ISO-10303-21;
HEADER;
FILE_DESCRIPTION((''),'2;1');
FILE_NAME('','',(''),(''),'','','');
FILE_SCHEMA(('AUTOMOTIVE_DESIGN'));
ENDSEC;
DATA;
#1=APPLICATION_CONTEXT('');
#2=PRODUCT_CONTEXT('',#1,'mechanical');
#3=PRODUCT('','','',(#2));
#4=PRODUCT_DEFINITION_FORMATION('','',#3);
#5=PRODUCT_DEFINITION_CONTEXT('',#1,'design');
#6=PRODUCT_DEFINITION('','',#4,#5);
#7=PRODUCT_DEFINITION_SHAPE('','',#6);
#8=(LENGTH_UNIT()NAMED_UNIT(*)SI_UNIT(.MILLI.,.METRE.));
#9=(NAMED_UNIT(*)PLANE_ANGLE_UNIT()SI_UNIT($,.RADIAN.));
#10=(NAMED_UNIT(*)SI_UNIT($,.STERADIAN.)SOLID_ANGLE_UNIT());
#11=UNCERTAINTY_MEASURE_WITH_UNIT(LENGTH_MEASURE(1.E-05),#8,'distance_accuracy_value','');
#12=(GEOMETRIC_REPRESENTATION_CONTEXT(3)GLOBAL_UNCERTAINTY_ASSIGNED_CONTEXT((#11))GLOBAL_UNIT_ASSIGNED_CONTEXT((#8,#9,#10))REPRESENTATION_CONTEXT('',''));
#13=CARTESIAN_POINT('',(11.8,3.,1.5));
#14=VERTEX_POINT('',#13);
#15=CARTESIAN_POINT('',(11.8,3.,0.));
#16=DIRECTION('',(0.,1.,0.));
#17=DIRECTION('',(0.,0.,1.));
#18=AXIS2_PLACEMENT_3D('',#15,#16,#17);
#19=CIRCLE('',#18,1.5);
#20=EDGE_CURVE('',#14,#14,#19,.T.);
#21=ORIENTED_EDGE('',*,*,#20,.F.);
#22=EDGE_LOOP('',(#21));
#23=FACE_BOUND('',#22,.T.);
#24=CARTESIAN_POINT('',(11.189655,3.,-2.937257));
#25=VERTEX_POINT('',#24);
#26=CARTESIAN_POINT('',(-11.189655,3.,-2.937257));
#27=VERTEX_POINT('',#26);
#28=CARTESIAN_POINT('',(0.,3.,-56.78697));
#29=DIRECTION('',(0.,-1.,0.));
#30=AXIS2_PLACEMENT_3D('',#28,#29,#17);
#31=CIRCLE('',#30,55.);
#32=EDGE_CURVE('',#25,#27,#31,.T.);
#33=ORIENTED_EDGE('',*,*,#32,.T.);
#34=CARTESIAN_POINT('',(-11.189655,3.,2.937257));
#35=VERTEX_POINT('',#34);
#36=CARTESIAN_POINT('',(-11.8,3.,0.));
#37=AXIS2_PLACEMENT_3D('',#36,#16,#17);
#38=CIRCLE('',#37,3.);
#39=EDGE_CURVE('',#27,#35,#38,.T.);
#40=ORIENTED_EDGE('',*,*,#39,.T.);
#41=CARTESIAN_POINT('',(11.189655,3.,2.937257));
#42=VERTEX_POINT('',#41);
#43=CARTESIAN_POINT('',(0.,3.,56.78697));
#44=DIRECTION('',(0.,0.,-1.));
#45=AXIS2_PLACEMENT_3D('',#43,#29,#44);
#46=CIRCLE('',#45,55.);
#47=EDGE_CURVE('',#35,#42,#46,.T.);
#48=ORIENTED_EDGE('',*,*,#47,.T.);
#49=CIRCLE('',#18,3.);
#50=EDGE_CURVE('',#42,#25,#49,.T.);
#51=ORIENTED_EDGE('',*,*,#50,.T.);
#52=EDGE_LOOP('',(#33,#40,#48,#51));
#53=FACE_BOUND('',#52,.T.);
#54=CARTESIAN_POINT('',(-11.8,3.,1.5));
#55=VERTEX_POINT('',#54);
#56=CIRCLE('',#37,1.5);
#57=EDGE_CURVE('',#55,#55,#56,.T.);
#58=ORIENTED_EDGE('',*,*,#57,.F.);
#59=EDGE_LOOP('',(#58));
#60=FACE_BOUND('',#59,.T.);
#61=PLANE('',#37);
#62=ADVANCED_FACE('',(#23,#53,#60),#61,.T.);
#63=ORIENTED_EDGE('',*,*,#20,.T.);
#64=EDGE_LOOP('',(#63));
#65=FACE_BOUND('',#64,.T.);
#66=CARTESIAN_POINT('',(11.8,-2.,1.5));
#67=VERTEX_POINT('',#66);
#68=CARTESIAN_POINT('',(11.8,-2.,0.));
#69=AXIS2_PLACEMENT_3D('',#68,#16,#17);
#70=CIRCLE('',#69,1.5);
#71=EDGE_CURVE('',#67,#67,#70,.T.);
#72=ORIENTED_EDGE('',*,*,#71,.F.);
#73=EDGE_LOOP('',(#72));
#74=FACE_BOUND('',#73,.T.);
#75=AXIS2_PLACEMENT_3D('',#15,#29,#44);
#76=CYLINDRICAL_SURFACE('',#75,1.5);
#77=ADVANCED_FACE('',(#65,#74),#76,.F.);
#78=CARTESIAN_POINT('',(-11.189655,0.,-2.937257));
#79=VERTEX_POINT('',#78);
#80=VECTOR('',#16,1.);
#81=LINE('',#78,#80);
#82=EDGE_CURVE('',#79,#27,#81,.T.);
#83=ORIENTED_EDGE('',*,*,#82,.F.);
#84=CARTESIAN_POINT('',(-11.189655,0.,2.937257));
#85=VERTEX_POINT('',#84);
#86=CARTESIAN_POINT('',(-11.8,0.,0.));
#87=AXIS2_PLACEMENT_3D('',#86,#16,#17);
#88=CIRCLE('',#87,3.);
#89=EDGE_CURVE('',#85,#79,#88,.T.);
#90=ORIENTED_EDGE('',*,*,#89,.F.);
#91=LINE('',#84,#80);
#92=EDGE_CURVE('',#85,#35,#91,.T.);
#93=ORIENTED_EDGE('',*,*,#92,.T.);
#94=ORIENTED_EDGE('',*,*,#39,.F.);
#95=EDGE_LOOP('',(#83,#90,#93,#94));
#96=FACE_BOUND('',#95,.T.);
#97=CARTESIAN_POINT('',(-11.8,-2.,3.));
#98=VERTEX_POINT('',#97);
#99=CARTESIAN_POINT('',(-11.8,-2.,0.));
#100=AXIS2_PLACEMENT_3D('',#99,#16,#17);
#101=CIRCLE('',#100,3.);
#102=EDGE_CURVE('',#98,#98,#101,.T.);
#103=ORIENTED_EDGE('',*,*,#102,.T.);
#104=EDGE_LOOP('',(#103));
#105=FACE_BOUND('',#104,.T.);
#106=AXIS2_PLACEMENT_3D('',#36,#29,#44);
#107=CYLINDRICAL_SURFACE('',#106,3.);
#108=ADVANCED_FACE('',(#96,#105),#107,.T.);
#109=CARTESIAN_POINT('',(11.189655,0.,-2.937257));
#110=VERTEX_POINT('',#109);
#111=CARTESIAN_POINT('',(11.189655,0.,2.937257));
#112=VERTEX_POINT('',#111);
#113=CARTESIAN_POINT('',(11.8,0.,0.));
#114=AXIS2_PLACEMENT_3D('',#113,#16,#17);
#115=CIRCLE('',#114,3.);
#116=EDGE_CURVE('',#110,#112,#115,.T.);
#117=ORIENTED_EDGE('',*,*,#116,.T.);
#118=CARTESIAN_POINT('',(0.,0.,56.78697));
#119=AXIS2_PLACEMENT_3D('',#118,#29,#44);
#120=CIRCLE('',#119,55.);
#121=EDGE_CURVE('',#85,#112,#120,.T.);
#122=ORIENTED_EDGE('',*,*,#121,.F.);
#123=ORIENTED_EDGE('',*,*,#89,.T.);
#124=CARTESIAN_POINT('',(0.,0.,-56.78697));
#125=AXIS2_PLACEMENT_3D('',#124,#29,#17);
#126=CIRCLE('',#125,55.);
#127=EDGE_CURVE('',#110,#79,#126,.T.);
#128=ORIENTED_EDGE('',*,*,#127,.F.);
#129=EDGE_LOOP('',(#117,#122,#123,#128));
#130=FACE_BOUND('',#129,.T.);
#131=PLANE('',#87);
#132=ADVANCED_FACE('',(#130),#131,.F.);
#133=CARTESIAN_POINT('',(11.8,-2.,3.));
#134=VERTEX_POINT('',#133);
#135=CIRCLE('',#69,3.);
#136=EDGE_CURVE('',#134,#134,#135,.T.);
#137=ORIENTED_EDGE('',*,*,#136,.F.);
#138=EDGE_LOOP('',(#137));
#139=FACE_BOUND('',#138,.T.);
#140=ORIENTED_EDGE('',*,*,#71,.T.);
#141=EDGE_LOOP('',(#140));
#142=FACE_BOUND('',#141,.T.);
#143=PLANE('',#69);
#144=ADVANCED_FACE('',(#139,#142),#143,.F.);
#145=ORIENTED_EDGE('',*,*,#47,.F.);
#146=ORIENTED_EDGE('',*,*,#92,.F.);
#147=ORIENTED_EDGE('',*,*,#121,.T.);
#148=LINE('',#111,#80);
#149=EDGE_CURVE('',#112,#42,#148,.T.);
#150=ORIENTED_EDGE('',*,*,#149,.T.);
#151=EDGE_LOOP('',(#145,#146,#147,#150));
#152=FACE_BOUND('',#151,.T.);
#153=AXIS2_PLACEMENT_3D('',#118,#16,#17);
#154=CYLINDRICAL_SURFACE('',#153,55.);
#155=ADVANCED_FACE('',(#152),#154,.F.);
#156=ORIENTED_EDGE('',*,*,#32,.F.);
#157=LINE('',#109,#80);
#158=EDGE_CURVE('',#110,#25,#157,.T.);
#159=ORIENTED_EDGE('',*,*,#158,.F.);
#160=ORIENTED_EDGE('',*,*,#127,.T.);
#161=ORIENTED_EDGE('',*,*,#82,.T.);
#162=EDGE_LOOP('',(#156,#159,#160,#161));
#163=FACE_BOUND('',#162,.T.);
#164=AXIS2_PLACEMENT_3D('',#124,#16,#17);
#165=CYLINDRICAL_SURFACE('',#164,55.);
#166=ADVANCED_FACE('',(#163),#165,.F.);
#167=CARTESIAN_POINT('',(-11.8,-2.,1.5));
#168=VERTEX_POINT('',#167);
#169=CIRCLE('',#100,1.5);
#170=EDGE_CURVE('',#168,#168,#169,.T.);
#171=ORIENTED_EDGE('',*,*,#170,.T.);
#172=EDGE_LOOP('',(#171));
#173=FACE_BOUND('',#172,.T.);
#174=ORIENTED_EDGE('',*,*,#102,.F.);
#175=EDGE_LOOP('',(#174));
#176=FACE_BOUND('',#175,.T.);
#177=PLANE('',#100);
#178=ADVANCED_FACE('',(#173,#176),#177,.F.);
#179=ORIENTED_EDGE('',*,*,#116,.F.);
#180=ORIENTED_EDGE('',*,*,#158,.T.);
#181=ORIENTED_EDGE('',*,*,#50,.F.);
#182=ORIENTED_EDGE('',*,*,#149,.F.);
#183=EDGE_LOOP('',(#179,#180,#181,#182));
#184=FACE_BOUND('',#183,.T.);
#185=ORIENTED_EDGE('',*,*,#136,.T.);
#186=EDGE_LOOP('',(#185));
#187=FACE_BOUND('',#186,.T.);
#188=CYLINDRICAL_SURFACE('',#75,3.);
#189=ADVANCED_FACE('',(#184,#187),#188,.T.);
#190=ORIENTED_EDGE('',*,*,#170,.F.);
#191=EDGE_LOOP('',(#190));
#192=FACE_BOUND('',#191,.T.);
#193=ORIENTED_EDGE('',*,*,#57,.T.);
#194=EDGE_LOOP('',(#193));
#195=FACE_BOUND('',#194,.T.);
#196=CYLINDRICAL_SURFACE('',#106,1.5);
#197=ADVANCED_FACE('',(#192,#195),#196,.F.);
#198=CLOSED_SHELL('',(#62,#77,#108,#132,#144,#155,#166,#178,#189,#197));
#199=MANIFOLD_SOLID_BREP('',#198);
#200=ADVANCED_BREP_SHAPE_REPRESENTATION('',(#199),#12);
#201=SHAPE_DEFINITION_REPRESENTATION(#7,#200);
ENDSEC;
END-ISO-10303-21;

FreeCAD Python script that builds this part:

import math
import FreeCAD as App
import Part
import Sketcher

V = App.Vector
Q = App.Units.Quantity

doc = App.newDocument("Part")
params = doc.addObject("Spreadsheet::Sheet", "Params")
for row, (alias, value) in enumerate([
    ("sketch1_diameter", "3 mm"),
    ("sketch1_radius", "3 mm"),
    ("sketch1_width", "23.6 mm"),
    ("pad1_length", "3 mm"),
    ("sketch2_radius", "3 mm"),
    ("sketch2_radius2", "55 mm"),
    ("sketch2_width", "37.67 mm"),
    ("sketch2_height", "14.07 mm"),
    ("sketch3_diameter", "3 mm"),
    ("sketch3_radius", "3 mm"),
    ("pad2_length", "2 mm"),
], start=1):
    params.set(f"A{row}", alias)
    params.set(f"B{row}", "=" + value)
    params.setAlias(f"B{row}", alias)

body = doc.addObject("PartDesign::Body", "Body")

sketch1 = body.newObject("Sketcher::SketchObject", "Sketch")
sketch1.AttachmentSupport = (doc.getObject("XZ_Plane"), [""])
sketch1.MapMode = "FlatFace"
sketch1.addGeometry(Part.LineSegment(V(11.8, -3, 0), V(-11.8, -3, 0)), False)
sketch1.addGeometry(Part.ArcOfCircle(Part.Circle(V(-11.8, 0, 0), V(0, 0, 1), 3), math.radians(90), math.radians(270)), False)
sketch1.addGeometry(Part.LineSegment(V(-11.8, 3, 0), V(11.8, 3, 0)), False)
sketch1.addGeometry(Part.ArcOfCircle(Part.Circle(V(11.8, 0, 0), V(0, 0, 1), 3), math.radians(-90), math.radians(90)), False)
sketch1.addGeometry(Part.Circle(V(11.8, 0, 0), V(0, 0, 1), 1.5), False)
sketch1.addGeometry(Part.Circle(V(-11.8, 0, 0), V(0, 0, 1), 1.5), False)
sketch1.addConstraint(Sketcher.Constraint("Tangent", 0, 2, 1, 2))
sketch1.addConstraint(Sketcher.Constraint("Tangent", 1, 1, 2, 1))
sketch1.addConstraint(Sketcher.Constraint("Tangent", 2, 2, 3, 2))
sketch1.addConstraint(Sketcher.Constraint("Tangent", 3, 1, 0, 1))
sketch1.addConstraint(Sketcher.Constraint("Horizontal", 0))
sketch1.addConstraint(Sketcher.Constraint("Horizontal", 2))
sketch1.addConstraint(Sketcher.Constraint("Coincident", 4, 3, 3, 3))
sketch1.addConstraint(Sketcher.Constraint("Coincident", 5, 3, 1, 3))
sketch1.addConstraint(Sketcher.Constraint("Equal", 4, 5))
sketch1.addConstraint(Sketcher.Constraint("Symmetric", 1, 3, 3, 3, -1, 1))
sketch1.addConstraint(Sketcher.Constraint("Diameter", 4, Q("3 mm")))
sketch1.addConstraint(Sketcher.Constraint("Radius", 1, Q("3 mm")))
sketch1.addConstraint(Sketcher.Constraint("DistanceX", 0, 2, 0, 1, Q("23.6 mm")))
sketch1.setExpression("Constraints[10]", "Params.sketch1_diameter")
sketch1.setExpression("Constraints[11]", "Params.sketch1_radius")
sketch1.setExpression("Constraints[12]", "Params.sketch1_width")
pad1 = body.newObject("PartDesign::Pad", "Pad")
pad1.Profile = sketch1
pad1.setExpression("Length", "Params.pad1_length")
pad1.Reversed = True

sketch2 = body.newObject("Sketcher::SketchObject", "Sketch001")
sketch2.AttachmentSupport = (doc.getObject("XZ_Plane"), [""])
sketch2.MapMode = "FlatFace"
sketch2.AttachmentOffset = App.Placement(V(0, 0, -3), App.Rotation())
sketch2.addGeometry(Part.LineSegment(V(-18.8, -7, 0), V(-18.8, 7, 0)), False)
sketch2.addGeometry(Part.LineSegment(V(-18.8, 7, 0), V(18.8, 7, 0)), False)
sketch2.addGeometry(Part.LineSegment(V(18.8, 7, 0), V(18.8, -7, 0)), False)
sketch2.addGeometry(Part.LineSegment(V(18.8, -7, 0), V(-18.8, -7, 0)), False)
sketch2.addGeometry(Part.ArcOfCircle(Part.Circle(V(-11.8, 0, 0), V(0, 0, 1), 3), math.radians(78), math.radians(282)), False)
sketch2.addGeometry(Part.ArcOfCircle(Part.Circle(V(0, -56.8, 0), V(0, 0, 1), 55), math.radians(78), math.radians(102)), False)
sketch2.addGeometry(Part.ArcOfCircle(Part.Circle(V(11.8, 0, 0), V(0, 0, 1), 3), math.radians(-102), math.radians(102)), False)
sketch2.addGeometry(Part.ArcOfCircle(Part.Circle(V(0, 56.8, 0), V(0, 0, 1), 55), math.radians(-102), math.radians(-78)), False)
sketch2.addConstraint(Sketcher.Constraint("Coincident", 0, 2, 1, 1))
sketch2.addConstraint(Sketcher.Constraint("Coincident", 1, 2, 2, 1))
sketch2.addConstraint(Sketcher.Constraint("Coincident", 2, 2, 3, 1))
sketch2.addConstraint(Sketcher.Constraint("Coincident", 3, 2, 0, 1))
sketch2.addConstraint(Sketcher.Constraint("Tangent", 4, 2, 5, 2))
sketch2.addConstraint(Sketcher.Constraint("Tangent", 5, 1, 6, 1))
sketch2.addConstraint(Sketcher.Constraint("Tangent", 6, 2, 7, 2))
sketch2.addConstraint(Sketcher.Constraint("Tangent", 7, 1, 4, 1))
sketch2.addConstraint(Sketcher.Constraint("Vertical", 0))
sketch2.addConstraint(Sketcher.Constraint("Horizontal", 1))
sketch2.addConstraint(Sketcher.Constraint("Vertical", 2))
sketch2.addConstraint(Sketcher.Constraint("Horizontal", 3))
sketch2.addConstraint(Sketcher.Constraint("Equal", 4, 6))
sketch2.addConstraint(Sketcher.Constraint("Equal", 5, 7))
sketch2.addConstraint(Sketcher.Constraint("Symmetric", 4, 3, 6, 3, -1, 1))
sketch2.addConstraint(Sketcher.Constraint("Symmetric", 0, 2, 2, 2, -1, 1))
sketch2.addConstraint(Sketcher.Constraint("PointOnObject", 4, 3, -1))
sketch2.addConstraint(Sketcher.Constraint("Radius", 4, Q("3 mm")))
sketch2.addConstraint(Sketcher.Constraint("Radius", 5, Q("55 mm")))
sketch2.addConstraint(Sketcher.Constraint("DistanceX", 1, 1, 1, 2, Q("37.67 mm")))
sketch2.addConstraint(Sketcher.Constraint("DistanceY", 0, 1, 0, 2, Q("14.07 mm")))
sketch2.addConstraint(Sketcher.Constraint("DistanceX", 4, 3, -1, 1, Q("11.8 mm")))
sketch2.setExpression("Constraints[17]", "Params.sketch2_radius")
sketch2.setExpression("Constraints[18]", "Params.sketch2_radius2")
sketch2.setExpression("Constraints[19]", "Params.sketch2_width")
sketch2.setExpression("Constraints[20]", "Params.sketch2_height")
pocket1 = body.newObject("PartDesign::Pocket", "Pocket")
pocket1.Profile = sketch2
pocket1.Type = "ThroughAll"
pocket1.Reversed = True

sketch3 = body.newObject("Sketcher::SketchObject", "Sketch002")
sketch3.AttachmentSupport = (doc.getObject("XZ_Plane"), [""])
sketch3.MapMode = "FlatFace"
sketch3.addGeometry(Part.ArcOfCircle(Part.Circle(V(-11.8, 0, 0), V(0, 0, 1), 3), math.radians(0), math.radians(78)), False)
sketch3.addGeometry(Part.ArcOfCircle(Part.Circle(V(-11.8, 0, 0), V(0, 0, 1), 3), math.radians(-78), math.radians(0)), False)
sketch3.addGeometry(Part.ArcOfCircle(Part.Circle(V(-11.8, 0, 0), V(0, 0, 1), 3), math.radians(78), math.radians(282)), False)
sketch3.addGeometry(Part.Circle(V(-11.8, 0, 0), V(0, 0, 1), 1.5), False)
sketch3.addGeometry(Part.ArcOfCircle(Part.Circle(V(11.8, 0, 0), V(0, 0, 1), 3), math.radians(0), math.radians(102)), False)
sketch3.addGeometry(Part.ArcOfCircle(Part.Circle(V(11.8, 0, 0), V(0, 0, 1), 3), math.radians(-102), math.radians(0)), False)
sketch3.addGeometry(Part.ArcOfCircle(Part.Circle(V(11.8, 0, 0), V(0, 0, 1), 3), math.radians(102), math.radians(258)), False)
sketch3.addGeometry(Part.Circle(V(11.8, 0, 0), V(0, 0, 1), 1.5), False)
sketch3.addConstraint(Sketcher.Constraint("Tangent", 0, 1, 1, 2))
sketch3.addConstraint(Sketcher.Constraint("Tangent", 1, 1, 2, 2))
sketch3.addConstraint(Sketcher.Constraint("Tangent", 2, 1, 0, 2))
sketch3.addConstraint(Sketcher.Constraint("Tangent", 4, 1, 5, 2))
sketch3.addConstraint(Sketcher.Constraint("Tangent", 5, 1, 6, 2))
sketch3.addConstraint(Sketcher.Constraint("Tangent", 6, 1, 4, 2))
sketch3.addConstraint(Sketcher.Constraint("Coincident", 3, 3, 0, 3))
sketch3.addConstraint(Sketcher.Constraint("Coincident", 7, 3, 4, 3))
sketch3.addConstraint(Sketcher.Constraint("Equal", 2, 4))
sketch3.addConstraint(Sketcher.Constraint("Equal", 3, 7))
sketch3.addConstraint(Sketcher.Constraint("Symmetric", 0, 3, 4, 3, -1, 1))
sketch3.addConstraint(Sketcher.Constraint("Symmetric", 1, 1, 5, 1, -2))
sketch3.addConstraint(Sketcher.Constraint("PointOnObject", 0, 1, -1))
sketch3.addConstraint(Sketcher.Constraint("PointOnObject", 4, 1, -1))
sketch3.addConstraint(Sketcher.Constraint("Horizontal", 2, 1, 6, 1))
sketch3.addConstraint(Sketcher.Constraint("Vertical", 1, 1, 2, 1))
sketch3.addConstraint(Sketcher.Constraint("Diameter", 3, Q("3 mm")))
sketch3.addConstraint(Sketcher.Constraint("Radius", 0, Q("3 mm")))
sketch3.addConstraint(Sketcher.Constraint("DistanceX", 0, 3, -1, 1, Q("11.8 mm")))
sketch3.addConstraint(Sketcher.Constraint("DistanceX", 1, 1, -1, 1, Q("11.189655 mm")))
sketch3.setExpression("Constraints[16]", "Params.sketch3_diameter")
sketch3.setExpression("Constraints[17]", "Params.sketch3_radius")
pad2 = body.newObject("PartDesign::Pad", "Pad001")
pad2.Profile = sketch3
pad2.setExpression("Length", "Params.pad2_length")

doc.recompute()
